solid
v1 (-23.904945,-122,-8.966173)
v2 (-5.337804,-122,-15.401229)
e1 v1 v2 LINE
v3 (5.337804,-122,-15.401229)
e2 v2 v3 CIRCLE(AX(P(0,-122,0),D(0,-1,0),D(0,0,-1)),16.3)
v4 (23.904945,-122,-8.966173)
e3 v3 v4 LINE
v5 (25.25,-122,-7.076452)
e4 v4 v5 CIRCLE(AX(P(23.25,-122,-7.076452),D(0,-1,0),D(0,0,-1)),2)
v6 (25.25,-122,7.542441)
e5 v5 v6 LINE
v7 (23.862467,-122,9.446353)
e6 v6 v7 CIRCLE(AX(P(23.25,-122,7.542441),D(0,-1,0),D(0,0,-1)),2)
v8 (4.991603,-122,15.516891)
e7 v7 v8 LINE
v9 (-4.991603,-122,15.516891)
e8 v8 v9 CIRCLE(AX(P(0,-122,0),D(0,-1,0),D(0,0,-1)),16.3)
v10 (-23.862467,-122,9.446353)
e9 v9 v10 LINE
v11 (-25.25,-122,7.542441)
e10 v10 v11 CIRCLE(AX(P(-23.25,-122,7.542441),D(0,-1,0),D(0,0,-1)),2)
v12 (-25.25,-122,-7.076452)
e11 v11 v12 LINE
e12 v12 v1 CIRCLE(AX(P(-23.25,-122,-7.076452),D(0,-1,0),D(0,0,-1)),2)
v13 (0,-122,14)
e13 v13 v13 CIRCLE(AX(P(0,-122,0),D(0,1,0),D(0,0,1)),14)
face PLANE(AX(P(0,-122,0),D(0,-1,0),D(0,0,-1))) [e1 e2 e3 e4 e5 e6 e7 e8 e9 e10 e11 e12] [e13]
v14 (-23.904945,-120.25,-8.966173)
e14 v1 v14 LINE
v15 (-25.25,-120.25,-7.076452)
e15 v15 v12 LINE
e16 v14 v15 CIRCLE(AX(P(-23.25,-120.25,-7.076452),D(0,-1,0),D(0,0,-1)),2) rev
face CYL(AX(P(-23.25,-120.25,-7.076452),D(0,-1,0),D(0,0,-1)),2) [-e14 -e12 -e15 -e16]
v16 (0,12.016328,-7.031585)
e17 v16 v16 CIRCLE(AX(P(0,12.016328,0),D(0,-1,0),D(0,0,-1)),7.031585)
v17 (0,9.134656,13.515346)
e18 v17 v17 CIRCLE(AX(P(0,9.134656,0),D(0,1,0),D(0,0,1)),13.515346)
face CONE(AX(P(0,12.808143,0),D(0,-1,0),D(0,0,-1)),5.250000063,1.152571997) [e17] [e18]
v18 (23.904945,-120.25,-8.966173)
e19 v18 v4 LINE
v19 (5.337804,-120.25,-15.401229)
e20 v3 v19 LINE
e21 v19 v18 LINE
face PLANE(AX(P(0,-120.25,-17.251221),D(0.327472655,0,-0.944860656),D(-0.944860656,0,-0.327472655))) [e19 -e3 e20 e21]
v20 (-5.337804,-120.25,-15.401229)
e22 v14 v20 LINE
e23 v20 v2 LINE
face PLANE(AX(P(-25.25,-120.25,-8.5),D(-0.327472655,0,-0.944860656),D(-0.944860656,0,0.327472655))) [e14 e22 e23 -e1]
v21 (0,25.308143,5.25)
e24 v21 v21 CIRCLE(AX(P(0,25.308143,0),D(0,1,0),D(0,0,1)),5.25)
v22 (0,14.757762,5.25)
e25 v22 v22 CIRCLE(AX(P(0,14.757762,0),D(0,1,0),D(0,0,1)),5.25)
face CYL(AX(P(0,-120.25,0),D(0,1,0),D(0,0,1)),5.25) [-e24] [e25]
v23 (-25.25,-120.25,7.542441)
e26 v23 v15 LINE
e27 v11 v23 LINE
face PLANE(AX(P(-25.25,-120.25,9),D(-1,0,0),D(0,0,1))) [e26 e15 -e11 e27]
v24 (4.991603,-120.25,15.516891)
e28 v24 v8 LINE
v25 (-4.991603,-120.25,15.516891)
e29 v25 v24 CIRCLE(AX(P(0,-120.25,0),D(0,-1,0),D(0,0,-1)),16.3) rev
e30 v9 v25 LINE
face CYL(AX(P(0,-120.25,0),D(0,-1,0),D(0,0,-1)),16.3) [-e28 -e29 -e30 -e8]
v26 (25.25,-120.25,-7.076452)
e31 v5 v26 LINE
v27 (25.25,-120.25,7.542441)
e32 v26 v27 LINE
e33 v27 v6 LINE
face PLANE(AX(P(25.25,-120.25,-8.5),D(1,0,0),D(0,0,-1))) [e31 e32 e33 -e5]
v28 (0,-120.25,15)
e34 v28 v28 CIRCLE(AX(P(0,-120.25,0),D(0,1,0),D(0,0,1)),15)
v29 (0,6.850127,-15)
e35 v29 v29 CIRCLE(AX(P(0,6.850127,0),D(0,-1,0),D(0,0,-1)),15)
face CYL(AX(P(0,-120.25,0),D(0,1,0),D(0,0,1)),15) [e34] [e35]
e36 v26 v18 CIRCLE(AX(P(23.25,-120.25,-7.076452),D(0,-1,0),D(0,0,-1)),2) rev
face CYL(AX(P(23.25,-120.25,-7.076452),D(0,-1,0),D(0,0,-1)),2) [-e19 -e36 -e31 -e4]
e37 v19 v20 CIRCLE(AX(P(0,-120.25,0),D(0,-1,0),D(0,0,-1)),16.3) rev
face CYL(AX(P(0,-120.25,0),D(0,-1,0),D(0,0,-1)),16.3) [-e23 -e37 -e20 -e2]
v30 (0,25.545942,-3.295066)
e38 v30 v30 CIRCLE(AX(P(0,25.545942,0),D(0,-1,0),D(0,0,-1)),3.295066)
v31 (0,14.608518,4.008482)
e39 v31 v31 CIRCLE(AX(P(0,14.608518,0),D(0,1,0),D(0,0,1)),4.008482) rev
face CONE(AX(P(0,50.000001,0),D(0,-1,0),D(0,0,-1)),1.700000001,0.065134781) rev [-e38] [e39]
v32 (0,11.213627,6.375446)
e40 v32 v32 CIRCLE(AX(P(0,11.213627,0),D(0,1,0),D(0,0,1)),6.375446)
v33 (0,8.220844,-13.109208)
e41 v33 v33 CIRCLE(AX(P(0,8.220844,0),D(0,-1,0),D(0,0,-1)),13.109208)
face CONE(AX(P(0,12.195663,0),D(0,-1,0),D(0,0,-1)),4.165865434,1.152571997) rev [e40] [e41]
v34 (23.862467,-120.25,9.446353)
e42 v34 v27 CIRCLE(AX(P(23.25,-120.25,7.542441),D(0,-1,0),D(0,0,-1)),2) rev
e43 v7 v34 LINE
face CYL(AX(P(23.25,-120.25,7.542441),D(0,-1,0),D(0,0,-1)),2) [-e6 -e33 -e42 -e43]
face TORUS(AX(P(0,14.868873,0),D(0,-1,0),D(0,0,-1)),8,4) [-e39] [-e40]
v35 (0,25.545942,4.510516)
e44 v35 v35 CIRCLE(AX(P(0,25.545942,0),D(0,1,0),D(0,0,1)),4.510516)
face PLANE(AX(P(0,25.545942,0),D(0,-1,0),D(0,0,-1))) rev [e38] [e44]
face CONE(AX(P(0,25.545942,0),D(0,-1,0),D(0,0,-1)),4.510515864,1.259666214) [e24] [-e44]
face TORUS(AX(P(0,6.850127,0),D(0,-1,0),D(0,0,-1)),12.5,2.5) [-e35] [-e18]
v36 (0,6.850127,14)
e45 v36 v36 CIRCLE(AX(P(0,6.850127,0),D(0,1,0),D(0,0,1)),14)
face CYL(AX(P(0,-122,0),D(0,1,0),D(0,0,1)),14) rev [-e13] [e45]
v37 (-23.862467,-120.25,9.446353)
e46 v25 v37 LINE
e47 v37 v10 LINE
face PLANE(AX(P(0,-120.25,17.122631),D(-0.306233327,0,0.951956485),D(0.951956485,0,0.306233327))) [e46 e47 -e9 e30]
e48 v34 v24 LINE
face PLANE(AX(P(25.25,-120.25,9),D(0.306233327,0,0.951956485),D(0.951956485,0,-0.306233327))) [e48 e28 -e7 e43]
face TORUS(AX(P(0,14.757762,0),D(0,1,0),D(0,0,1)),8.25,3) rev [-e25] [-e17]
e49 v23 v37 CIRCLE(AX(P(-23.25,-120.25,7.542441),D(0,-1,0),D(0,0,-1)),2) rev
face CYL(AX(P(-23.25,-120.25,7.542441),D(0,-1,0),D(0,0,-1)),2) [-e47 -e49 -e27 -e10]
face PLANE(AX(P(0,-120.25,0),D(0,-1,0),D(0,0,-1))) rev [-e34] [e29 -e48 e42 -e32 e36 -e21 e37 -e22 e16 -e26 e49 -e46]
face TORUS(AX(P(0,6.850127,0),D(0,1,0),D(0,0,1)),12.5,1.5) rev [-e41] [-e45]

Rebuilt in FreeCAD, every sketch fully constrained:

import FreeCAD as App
import Part
import Sketcher
Q = App.Units.Quantity


def edges_at(feature, points):
    """Names of the edges that pass closest to the given points."""
    edges = feature.Shape.Edges
    near = lambda p: min(range(len(edges)), key=lambda i: edges[i].distToShape(Part.Vertex(*p))[0])
    return sorted({f"Edge{near(p) + 1}" for p in points})


def add_polygon(sketch, points):
    """Adds a closed chain of lines whose ends are joined by coincident constraints."""
    first, n = sketch.GeometryCount, len(points)
    for a, b in zip(points, points[1:] + points[:1]):
        sketch.addGeometry(Part.LineSegment(App.Vector(*a, 0), App.Vector(*b, 0)), False)
    for i in range(n):
        sketch.addConstraint(Sketcher.Constraint("Coincident", first + i, 2, first + (i + 1) % n, 1))

doc = App.newDocument("Part")
body = doc.addObject("PartDesign::Body", "Body")

sketch1 = body.newObject("Sketcher::SketchObject", "Sketch")
sketch1.AttachmentSupport = (doc.getObject("XZ_Plane"), [""])
sketch1.MapMode = "FlatFace"
sketch1.AttachmentOffset = App.Placement(App.Vector(0, 0, 122), App.Rotation())
add_polygon(sketch1, [(0, -17), (25, -8), (25, 9), (0, 17), (-25, 9), (-25, -8)])
sketch1.addConstraint(Sketcher.Constraint("Vertical", 1))
sketch1.addConstraint(Sketcher.Constraint("Vertical", 4))
sketch1.addConstraint(Sketcher.Constraint("Symmetric", 1, 2, 3, 2, -2))
sketch1.addConstraint(Sketcher.Constraint("PointOnObject", 2, 2, -2))
sketch1.addConstraint(Sketcher.Constraint("PointOnObject", 5, 2, -2))
sketch1.addConstraint(Sketcher.Constraint("Horizontal", 0, 2, 4, 2))
sketch1.addConstraint(Sketcher.Constraint("DistanceY", 1, 1, 1, 2, Q("17.5 mm")))
sketch1.addConstraint(Sketcher.Constraint("DistanceY", -1, 1, 1, 2, Q("9 mm")))
sketch1.addConstraint(Sketcher.Constraint("DistanceX", 3, 2, 1, 2, Q("50.5 mm")))
sketch1.addConstraint(Sketcher.Constraint("Distance", 2, Q("26.524322 mm")))
sketch1.addConstraint(Sketcher.Constraint("DistanceY", 5, 2, -1, 1, Q("17.251221 mm")))
pad1 = body.newObject("PartDesign::Pad", "Pad")
pad1.Profile = sketch1
pad1.Length = 1.75
pad1.Reversed = True

sketch2 = body.newObject("Sketcher::SketchObject", "Sketch001")
sketch2.AttachmentSupport = (doc.getObject("XY_Plane"), [""])
sketch2.MapMode = "FlatFace"
add_polygon(sketch2, [(15, -120.3), (0, -120.3), (0, 50), (3, 50), (4.5, 25.5), (5.3, 25.3), (5.3, 12.8), (15, 8.5)])
sketch2.addConstraint(Sketcher.Constraint("Horizontal", 0))
sketch2.addConstraint(Sketcher.Constraint("Vertical", 1))
sketch2.addConstraint(Sketcher.Constraint("Horizontal", 2))
sketch2.addConstraint(Sketcher.Constraint("Vertical", 5))
sketch2.addConstraint(Sketcher.Constraint("Vertical", 7))
sketch2.addConstraint(Sketcher.Constraint("PointOnObject", 0, 2, -2))
sketch2.addConstraint(Sketcher.Constraint("DistanceX", 0, 2, 0, 1, Q("15 mm")))
sketch2.addConstraint(Sketcher.Constraint("DistanceX", 2, 1, 2, 2, Q("3 mm")))
sketch2.addConstraint(Sketcher.Constraint("DistanceY", 5, 2, 5, 1, Q("12.5 mm")))
sketch2.addConstraint(Sketcher.Constraint("DistanceY", -1, 1, 1, 2, Q("50.000001 mm")))
sketch2.addConstraint(Sketcher.Constraint("DistanceY", 1, 1, 1, 2, Q("170.250001 mm")))
sketch2.addConstraint(Sketcher.Constraint("DistanceX", -1, 1, 4, 2, Q("5.25 mm")))
sketch2.addConstraint(Sketcher.Constraint("DistanceY", 7, 2, 7, 1, Q("128.72481 mm")))
sketch2.addConstraint(Sketcher.Constraint("DistanceY", 4, 2, 3, 2, Q("0.237799 mm")))
sketch2.addConstraint(Sketcher.Constraint("Distance", 4, Q("0.776779 mm")))
sketch2.addConstraint(Sketcher.Constraint("DistanceY", -1, 1, 3, 2, Q("25.545942 mm")))
revolution = body.newObject("PartDesign::Revolution", "Revolution")
revolution.Profile = sketch2
revolution.ReferenceAxis = (sketch2, ["V_Axis"])
revolution.Angle = 360

sketch3 = body.newObject("Sketcher::SketchObject", "Sketch002")
sketch3.AttachmentSupport = (doc.getObject("XY_Plane"), [""])
sketch3.MapMode = "FlatFace"
add_polygon(sketch3, [(14, -122), (0, -122), (0, 50), (1.7, 50), (4.2, 12.2), (14, 7.8)])
sketch3.addConstraint(Sketcher.Constraint("Horizontal", 0))
sketch3.addConstraint(Sketcher.Constraint("Vertical", 1))
sketch3.addConstraint(Sketcher.Constraint("Horizontal", 2))
sketch3.addConstraint(Sketcher.Constraint("Vertical", 5))
sketch3.addConstraint(Sketcher.Constraint("PointOnObject", 0, 2, -2))
sketch3.addConstraint(Sketcher.Constraint("DistanceX", 0, 2, 0, 1, Q("14 mm")))
sketch3.addConstraint(Sketcher.Constraint("DistanceY", 1, 1, 1, 2, Q("172.000001 mm")))
sketch3.addConstraint(Sketcher.Constraint("DistanceX", 2, 1, 2, 2, Q("1.7 mm")))
sketch3.addConstraint(Sketcher.Constraint("DistanceY", 0, 2, -1, 1, Q("122 mm")))
sketch3.addConstraint(Sketcher.Constraint("DistanceY", 5, 2, 5, 1, Q("129.824937 mm")))
sketch3.addConstraint(Sketcher.Constraint("Distance", 3, Q("37.884673 mm")))
sketch3.addConstraint(Sketcher.Constraint("Distance", 4, Q("10.761666 mm")))
groove = body.newObject("PartDesign::Groove", "Groove")
groove.Profile = sketch3
groove.ReferenceAxis = (sketch3, ["V_Axis"])
groove.Angle = 360
doc.recompute()

fillet = body.newObject("PartDesign::Fillet", "Fillet")
fillet.Base = (groove, edges_at(groove, [(0, 50, -3)]))
fillet.Radius = 1
doc.recompute()

fillet2 = body.newObject("PartDesign::Fillet", "Fillet001")
fillet2.Base = (fillet, edges_at(fillet, [(0, 7.825, 14)]))
fillet2.Radius = 1.5
doc.recompute()

fillet3 = body.newObject("PartDesign::Fillet", "Fillet002")
fillet3.Base = (fillet2, edges_at(fillet2, [
    (-25.25, -121.125, -8.5),
    (-25.25, -121.125, 9),
    (25.25, -121.125, 9),
    (25.25, -121.125, -8.5),
]))
fillet3.Radius = 2
doc.recompute()

fillet4 = body.newObject("PartDesign::Fillet", "Fillet003")
fillet4.Base = (fillet3, edges_at(fillet3, [(0, 8.475, -15)]))
fillet4.Radius = 2.5
doc.recompute()

fillet5 = body.newObject("PartDesign::Fillet", "Fillet004")
fillet5.Base = (fillet4, edges_at(fillet4, [(0, 12.808, -5.25)]))
fillet5.Radius = 3
doc.recompute()

fillet6 = body.newObject("PartDesign::Fillet", "Fillet005")
fillet6.Base = (fillet5, edges_at(fillet5, [(0, 12.196, 4.166)]))
fillet6.Radius = 4
doc.recompute()

fillet7 = body.newObject("PartDesign::Fillet", "Fillet006")
fillet7.Base = (fillet6, edges_at(fillet6, [(0, -121.125, 17.123), (0, -121.125, -17.251)]))
fillet7.Radius = 16.3

sketch4 = body.newObject("Sketcher::SketchObject", "Sketch003")
sketch4.AttachmentSupport = (doc.getObject("XZ_Plane"), [""])
sketch4.MapMode = "FlatFace"
sketch4.AttachmentOffset = App.Placement(App.Vector(0, 0, -25.545942), App.Rotation())
sketch4.addGeometry(Part.Circle(App.Vector(0, 0, 0), App.Vector(0, 0, 1), 17), False)
sketch4.addConstraint(Sketcher.Constraint("Coincident", 0, 3, -1, 1))
sketch4.addConstraint(Sketcher.Constraint("Diameter", 0, Q("34.89459 mm")))
pocket1 = body.newObject("PartDesign::Pocket", "Pocket")
pocket1.Profile = sketch4
pocket1.Length = 24.454059

doc.recompute()
